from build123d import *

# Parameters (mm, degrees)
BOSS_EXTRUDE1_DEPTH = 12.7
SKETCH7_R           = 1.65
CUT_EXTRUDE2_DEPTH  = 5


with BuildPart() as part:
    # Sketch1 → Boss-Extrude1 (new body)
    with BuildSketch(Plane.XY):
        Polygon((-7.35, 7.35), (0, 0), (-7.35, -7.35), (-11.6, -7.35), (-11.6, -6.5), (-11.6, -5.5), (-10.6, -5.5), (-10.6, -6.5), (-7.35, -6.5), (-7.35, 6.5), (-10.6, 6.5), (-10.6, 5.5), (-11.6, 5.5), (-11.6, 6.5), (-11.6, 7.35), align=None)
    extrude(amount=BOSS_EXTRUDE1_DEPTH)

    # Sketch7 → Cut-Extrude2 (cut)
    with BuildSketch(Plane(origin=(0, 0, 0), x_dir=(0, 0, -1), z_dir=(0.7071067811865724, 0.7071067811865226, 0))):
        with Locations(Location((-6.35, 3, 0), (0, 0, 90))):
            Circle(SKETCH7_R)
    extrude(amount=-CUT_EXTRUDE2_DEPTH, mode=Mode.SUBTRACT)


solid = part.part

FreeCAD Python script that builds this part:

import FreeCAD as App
import Part
import Sketcher
from FreeCAD import Vector


def add_polygon(sketch, points):
    """Adds a closed chain of lines whose ends are joined by coincident constraints."""
    first, n = sketch.GeometryCount, len(points)
    for a, b in zip(points, points[1:] + points[:1]):
        sketch.addGeometry(Part.LineSegment(App.Vector(*a, 0), App.Vector(*b, 0)), False)
    for i in range(n):
        sketch.addConstraint(Sketcher.Constraint("Coincident", first + i, 2, first + (i + 1) % n, 1))

doc = App.newDocument("Part")
body = doc.addObject("PartDesign::Body", "Body")

sketch1 = body.newObject("Sketcher::SketchObject", "Sketch")
sketch1.AttachmentSupport = (doc.getObject("XY_Plane"), [""])
sketch1.MapMode = "FlatFace"
add_polygon(sketch1, [(0, 0), (-7.35, 7.35), (-11.6, 7.35), (-11.6, 5.5), (-10.6, 5.5), (-10.6, 6.5), (-7.35, 6.5), (-7.35, -6.5), (-10.6, -6.5), (-10.6, -5.5), (-11.6, -5.5), (-11.6, -7.35), (-7.35, -7.35)])
sketch1.addConstraint(Sketcher.Constraint("Horizontal", 1))
sketch1.addConstraint(Sketcher.Constraint("Vertical", 2))
sketch1.addConstraint(Sketcher.Constraint("Horizontal", 3))
sketch1.addConstraint(Sketcher.Constraint("Vertical", 4))
sketch1.addConstraint(Sketcher.Constraint("Horizontal", 5))
sketch1.addConstraint(Sketcher.Constraint("Vertical", 6))
sketch1.addConstraint(Sketcher.Constraint("Horizontal", 7))
sketch1.addConstraint(Sketcher.Constraint("Vertical", 8))
sketch1.addConstraint(Sketcher.Constraint("Horizontal", 9))
sketch1.addConstraint(Sketcher.Constraint("Vertical", 10))
sketch1.addConstraint(Sketcher.Constraint("Horizontal", 11))
sketch1.addConstraint(Sketcher.Constraint("Coincident", 12, 2, -1, 1))
sketch1.addConstraint(Sketcher.Constraint("Symmetric", 4, 2, 7, 2, -1))
sketch1.addConstraint(Sketcher.Constraint("Symmetric", 2, 2, 9, 2, -1))
sketch1.addConstraint(Sketcher.Constraint("Symmetric", 0, 2, 11, 2, -1))
sketch1.addConstraint(Sketcher.Constraint("Perpendicular", 0, 12))
sketch1.addConstraint(Sketcher.Constraint("Vertical", 0, 2, 5, 2))
sketch1.addConstraint(Sketcher.Constraint("Equal", 9, 4))
sketch1.addConstraint(Sketcher.Constraint("DistanceX", 3, 1, 3, 2, 1.0))
sketch1.addConstraint(Sketcher.Constraint("DistanceY", 6, 2, 6, 1, 13.0))
sketch1.addConstraint(Sketcher.Constraint("DistanceX", 1, 2, 1, 1, 4.25))
sketch1.addConstraint(Sketcher.Constraint("DistanceY", 2, 2, 2, 1, 1.85))
pad1 = body.newObject("PartDesign::Pad", "Pad")
pad1.Profile = sketch1
pad1.Length = 12.7

sketch2 = body.newObject("Sketcher::SketchObject", "Sketch001")
sketch2.Placement = App.Placement(Vector(0, 0, 0), App.Rotation(Vector(0, 0, -1), Vector(-0.707106781, 0.707106781, 0), Vector(0.707106781, 0.707106781, 0), "ZXY"))
sketch2.addGeometry(Part.Circle(Vector(-6.35, 3, 0), Vector(0, 0, 1), 1.65), False)
sketch2.addConstraint(Sketcher.Constraint("Diameter", 0, 3.3))
sketch2.addConstraint(Sketcher.Constraint("DistanceY", -1, 1, 0, 3, 3.0))
sketch2.addConstraint(Sketcher.Constraint("DistanceX", 0, 3, -1, 1, 6.35))
pocket1 = body.newObject("PartDesign::Pocket", "Pocket")
pocket1.Profile = sketch2
pocket1.Length = 5

doc.recompute()
